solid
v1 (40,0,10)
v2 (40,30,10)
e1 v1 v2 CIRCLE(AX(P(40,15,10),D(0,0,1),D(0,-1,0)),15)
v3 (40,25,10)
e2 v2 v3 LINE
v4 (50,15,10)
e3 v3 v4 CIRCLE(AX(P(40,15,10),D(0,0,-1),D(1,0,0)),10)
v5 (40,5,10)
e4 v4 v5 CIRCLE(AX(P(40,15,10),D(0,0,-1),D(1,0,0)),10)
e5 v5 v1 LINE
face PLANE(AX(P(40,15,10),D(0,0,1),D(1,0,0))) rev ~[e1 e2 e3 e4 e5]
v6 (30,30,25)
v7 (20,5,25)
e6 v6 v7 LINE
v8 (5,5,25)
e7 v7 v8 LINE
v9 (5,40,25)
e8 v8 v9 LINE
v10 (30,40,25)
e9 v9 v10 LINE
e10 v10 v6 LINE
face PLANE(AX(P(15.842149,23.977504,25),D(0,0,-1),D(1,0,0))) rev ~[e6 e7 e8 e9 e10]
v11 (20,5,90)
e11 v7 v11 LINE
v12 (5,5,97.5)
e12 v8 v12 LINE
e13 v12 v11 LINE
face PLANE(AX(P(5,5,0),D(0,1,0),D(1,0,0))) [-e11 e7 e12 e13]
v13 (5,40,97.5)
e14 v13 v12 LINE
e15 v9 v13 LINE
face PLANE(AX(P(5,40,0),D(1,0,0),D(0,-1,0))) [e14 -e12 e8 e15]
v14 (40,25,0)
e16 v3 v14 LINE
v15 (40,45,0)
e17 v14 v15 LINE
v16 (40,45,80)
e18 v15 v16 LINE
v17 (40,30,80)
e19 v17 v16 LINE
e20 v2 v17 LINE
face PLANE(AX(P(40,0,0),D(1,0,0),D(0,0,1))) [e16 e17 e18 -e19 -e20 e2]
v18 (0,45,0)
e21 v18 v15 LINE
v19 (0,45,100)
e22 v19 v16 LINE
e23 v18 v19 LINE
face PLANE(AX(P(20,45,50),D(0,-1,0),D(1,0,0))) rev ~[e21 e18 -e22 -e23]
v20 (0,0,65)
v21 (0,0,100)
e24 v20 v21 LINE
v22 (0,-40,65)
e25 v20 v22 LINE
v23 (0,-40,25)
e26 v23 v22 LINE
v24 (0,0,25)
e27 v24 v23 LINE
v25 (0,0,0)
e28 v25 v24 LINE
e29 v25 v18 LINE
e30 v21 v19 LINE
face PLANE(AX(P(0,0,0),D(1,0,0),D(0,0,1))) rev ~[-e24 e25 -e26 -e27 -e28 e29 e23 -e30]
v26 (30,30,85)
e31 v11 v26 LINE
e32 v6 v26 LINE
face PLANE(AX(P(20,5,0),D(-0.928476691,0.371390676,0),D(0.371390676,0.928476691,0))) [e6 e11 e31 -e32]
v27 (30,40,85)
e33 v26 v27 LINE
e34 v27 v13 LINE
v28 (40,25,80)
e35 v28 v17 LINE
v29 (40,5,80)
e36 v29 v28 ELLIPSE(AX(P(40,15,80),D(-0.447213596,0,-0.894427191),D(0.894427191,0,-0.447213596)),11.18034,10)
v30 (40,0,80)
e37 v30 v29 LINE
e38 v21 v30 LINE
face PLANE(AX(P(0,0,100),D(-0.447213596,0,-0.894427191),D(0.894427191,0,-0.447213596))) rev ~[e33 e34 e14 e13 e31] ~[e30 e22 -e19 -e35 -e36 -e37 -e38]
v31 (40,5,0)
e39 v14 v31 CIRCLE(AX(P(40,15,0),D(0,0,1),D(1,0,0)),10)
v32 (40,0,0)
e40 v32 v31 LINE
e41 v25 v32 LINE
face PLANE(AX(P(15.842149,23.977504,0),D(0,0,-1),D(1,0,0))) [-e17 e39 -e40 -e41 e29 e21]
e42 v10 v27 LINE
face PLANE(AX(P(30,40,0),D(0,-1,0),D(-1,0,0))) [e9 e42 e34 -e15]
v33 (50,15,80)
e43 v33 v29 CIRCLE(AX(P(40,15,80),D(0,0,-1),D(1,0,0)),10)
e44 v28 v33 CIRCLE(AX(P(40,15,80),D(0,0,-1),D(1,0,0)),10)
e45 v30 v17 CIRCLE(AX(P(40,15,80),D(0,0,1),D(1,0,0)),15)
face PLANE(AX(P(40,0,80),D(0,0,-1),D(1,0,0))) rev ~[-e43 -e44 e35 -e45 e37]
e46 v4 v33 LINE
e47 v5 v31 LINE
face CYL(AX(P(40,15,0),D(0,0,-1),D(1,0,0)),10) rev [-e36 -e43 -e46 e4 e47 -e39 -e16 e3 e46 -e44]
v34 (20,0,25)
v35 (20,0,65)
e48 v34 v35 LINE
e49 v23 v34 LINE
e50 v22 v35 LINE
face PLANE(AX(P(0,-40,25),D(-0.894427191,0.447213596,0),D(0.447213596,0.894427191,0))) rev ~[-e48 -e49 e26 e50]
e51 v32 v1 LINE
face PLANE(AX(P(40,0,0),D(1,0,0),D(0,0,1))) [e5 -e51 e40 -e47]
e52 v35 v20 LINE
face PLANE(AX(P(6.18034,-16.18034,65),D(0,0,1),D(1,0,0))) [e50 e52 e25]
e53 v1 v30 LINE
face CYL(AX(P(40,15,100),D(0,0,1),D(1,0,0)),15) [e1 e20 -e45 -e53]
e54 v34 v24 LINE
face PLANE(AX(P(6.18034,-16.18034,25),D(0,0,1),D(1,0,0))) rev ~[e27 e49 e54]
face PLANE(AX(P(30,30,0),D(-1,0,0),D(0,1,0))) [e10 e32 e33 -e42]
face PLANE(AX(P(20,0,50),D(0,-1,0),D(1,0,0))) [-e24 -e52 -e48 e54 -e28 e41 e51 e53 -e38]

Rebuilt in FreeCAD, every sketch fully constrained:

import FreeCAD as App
import Part
import Sketcher

doc = App.newDocument("Part")
params = doc.addObject("Spreadsheet::Sheet", "Params")
for row, (alias, value) in enumerate([
    ("sketch1_width", "40 mm"),
    ("sketch1_height", "100 mm"),
    ("pad1_length", "45 mm"),
    ("sketch2_diameter", "30 mm"),
    ("pad2_length", "90 mm"),
    ("sketch3_height", "20 mm"),
    ("sketch4_width", "25 mm"),
    ("sketch4_width2", "15 mm"),
    ("sketch4_height", "35 mm"),
    ("sketch4_height2", "10 mm"),
    ("sketch5_width", "25 mm"),
    ("sketch5_width2", "15 mm"),
    ("sketch5_height", "35 mm"),
    ("sketch5_height2", "10 mm"),
    ("pad3_length", "25 mm"),
    ("sketch6_diameter", "20 mm"),
    ("sketch7_width", "20 mm"),
    ("sketch7_height", "40 mm"),
    ("pad4_length", "40 mm"),
], start=1):
    params.set(f"A{row}", alias)
    params.set(f"B{row}", "=" + value)
    params.setAlias(f"B{row}", alias)

body = doc.addObject("PartDesign::Body", "Body")

sketch1 = body.newObject("Sketcher::SketchObject", "Sketch")
sketch1.AttachmentSupport = (doc.getObject("XZ_Plane"), [""])
sketch1.MapMode = "FlatFace"
sketch1.addGeometry(Part.LineSegment(App.Vector(0, 100, 0), App.Vector(0, 0, 0)), False)
sketch1.addGeometry(Part.LineSegment(App.Vector(0, 0, 0), App.Vector(40, 0, 0)), False)
sketch1.addGeometry(Part.LineSegment(App.Vector(40, 0, 0), App.Vector(40, 100, 0)), False)
sketch1.addGeometry(Part.LineSegment(App.Vector(40, 100, 0), App.Vector(0, 100, 0)), False)
sketch1.addConstraint(Sketcher.Constraint("Coincident", 0, 2, 1, 1))
sketch1.addConstraint(Sketcher.Constraint("Coincident", 1, 2, 2, 1))
sketch1.addConstraint(Sketcher.Constraint("Coincident", 2, 2, 3, 1))
sketch1.addConstraint(Sketcher.Constraint("Coincident", 3, 2, 0, 1))
sketch1.addConstraint(Sketcher.Constraint("Vertical", 0))
sketch1.addConstraint(Sketcher.Constraint("Horizontal", 1))
sketch1.addConstraint(Sketcher.Constraint("Vertical", 2))
sketch1.addConstraint(Sketcher.Constraint("Horizontal", 3))
sketch1.addConstraint(Sketcher.Constraint("Coincident", 0, 2, -1, 1))
sketch1.addConstraint(Sketcher.Constraint("DistanceX", 1, 1, 1, 2, 40.0))
sketch1.addConstraint(Sketcher.Constraint("DistanceY", 0, 2, 0, 1, 100.0))
sketch1.setExpression("Constraints[9]", "Params.sketch1_width")
sketch1.setExpression("Constraints[10]", "Params.sketch1_height")
pad1 = body.newObject("PartDesign::Pad", "Pad")
pad1.Profile = sketch1
pad1.setExpression("Length", "Params.pad1_length")
pad1.Reversed = True

sketch2 = body.newObject("Sketcher::SketchObject", "Sketch001")
sketch2.AttachmentSupport = (doc.getObject("XY_Plane"), [""])
sketch2.MapMode = "FlatFace"
sketch2.AttachmentOffset = App.Placement(App.Vector(0, 0, 100), App.Rotation())
sketch2.addGeometry(Part.Circle(App.Vector(40, 15, 0), App.Vector(0, 0, 1), 15), False)
sketch2.addConstraint(Sketcher.Constraint("Diameter", 0, 30.0))
sketch2.addConstraint(Sketcher.Constraint("DistanceX", -1, 1, 0, 3, 40.0))
sketch2.addConstraint(Sketcher.Constraint("DistanceY", -1, 1, 0, 3, 15.0))
sketch2.setExpression("Constraints[0]", "Params.sketch2_diameter")
pad2 = body.newObject("PartDesign::Pad", "Pad001")
pad2.Profile = sketch2
pad2.setExpression("Length", "Params.pad2_length")
pad2.Reversed = True

sketch3 = body.newObject("Sketcher::SketchObject", "Sketch002")
sketch3.AttachmentSupport = (doc.getObject("XZ_Plane"), [""])
sketch3.MapMode = "FlatFace"
sketch3.addGeometry(Part.LineSegment(App.Vector(62.4297, 100, 0), App.Vector(0, 100, 0)), False)
sketch3.addGeometry(Part.LineSegment(App.Vector(0, 100, 0), App.Vector(40, 80, 0)), False)
sketch3.addGeometry(Part.LineSegment(App.Vector(40, 80, 0), App.Vector(62.4297, 80, 0)), False)
sketch3.addGeometry(Part.LineSegment(App.Vector(62.4297, 80, 0), App.Vector(62.4297, 100, 0)), False)
sketch3.addConstraint(Sketcher.Constraint("Coincident", 0, 2, 1, 1))
sketch3.addConstraint(Sketcher.Constraint("Coincident", 1, 2, 2, 1))
sketch3.addConstraint(Sketcher.Constraint("Coincident", 2, 2, 3, 1))
sketch3.addConstraint(Sketcher.Constraint("Coincident", 3, 2, 0, 1))
sketch3.addConstraint(Sketcher.Constraint("Horizontal", 0))
sketch3.addConstraint(Sketcher.Constraint("Horizontal", 2))
sketch3.addConstraint(Sketcher.Constraint("Vertical", 3))
sketch3.addConstraint(Sketcher.Constraint("PointOnObject", 0, 2, -2))
sketch3.addConstraint(Sketcher.Constraint("DistanceY", 3, 1, 3, 2, 20.0))
sketch3.addConstraint(Sketcher.Constraint("DistanceY", -1, 1, 0, 2, 100.0))
sketch3.addConstraint(Sketcher.Constraint("DistanceX", -1, 1, 1, 2, 40.0))
sketch3.addConstraint(Sketcher.Constraint("DistanceX", 0, 2, 0, 1, 62.4297))
sketch3.setExpression("Constraints[8]", "Params.sketch3_height")
pocket1 = body.newObject("PartDesign::Pocket", "Pocket")
pocket1.Profile = sketch3
pocket1.Type = "ThroughAll"

sketch4 = body.newObject("Sketcher::SketchObject", "Sketch003")
sketch4.AttachmentSupport = (doc.getObject("XY_Plane"), [""])
sketch4.MapMode = "FlatFace"
sketch4.addGeometry(Part.LineSegment(App.Vector(30, 40, 0), App.Vector(5, 40, 0)), False)
sketch4.addGeometry(Part.LineSegment(App.Vector(5, 40, 0), App.Vector(5, 5, 0)), False)
sketch4.addGeometry(Part.LineSegment(App.Vector(5, 5, 0), App.Vector(20, 5, 0)), False)
sketch4.addGeometry(Part.LineSegment(App.Vector(20, 5, 0), App.Vector(30, 30, 0)), False)
sketch4.addGeometry(Part.LineSegment(App.Vector(30, 30, 0), App.Vector(30, 40, 0)), False)
sketch4.addConstraint(Sketcher.Constraint("Coincident", 0, 2, 1, 1))
sketch4.addConstraint(Sketcher.Constraint("Coincident", 1, 2, 2, 1))
sketch4.addConstraint(Sketcher.Constraint("Coincident", 2, 2, 3, 1))
sketch4.addConstraint(Sketcher.Constraint("Coincident", 3, 2, 4, 1))
sketch4.addConstraint(Sketcher.Constraint("Coincident", 4, 2, 0, 1))
sketch4.addConstraint(Sketcher.Constraint("Horizontal", 0))
sketch4.addConstraint(Sketcher.Constraint("Vertical", 1))
sketch4.addConstraint(Sketcher.Constraint("Horizontal", 2))
sketch4.addConstraint(Sketcher.Constraint("Vertical", 4))
sketch4.addConstraint(Sketcher.Constraint("DistanceX", 0, 2, 0, 1, 25.0))
sketch4.addConstraint(Sketcher.Constraint("DistanceX", 2, 1, 2, 2, 15.0))
sketch4.addConstraint(Sketcher.Constraint("DistanceY", 1, 2, 1, 1, 35.0))
sketch4.addConstraint(Sketcher.Constraint("DistanceY", 4, 1, 4, 2, 10.0))
sketch4.addConstraint(Sketcher.Constraint("DistanceX", -1, 1, 0, 2, 5.0))
sketch4.addConstraint(Sketcher.Constraint("DistanceY", -1, 1, 0, 2, 40.0))
sketch4.setExpression("Constraints[9]", "Params.sketch4_width")
sketch4.setExpression("Constraints[10]", "Params.sketch4_width2")
sketch4.setExpression("Constraints[11]", "Params.sketch4_height")
sketch4.setExpression("Constraints[12]", "Params.sketch4_height2")
pocket2 = body.newObject("PartDesign::Pocket", "Pocket001")
pocket2.Profile = sketch4
pocket2.Type = "ThroughAll"
pocket2.Reversed = True

sketch5 = body.newObject("Sketcher::SketchObject", "Sketch004")
sketch5.AttachmentSupport = (doc.getObject("XY_Plane"), [""])
sketch5.MapMode = "FlatFace"
sketch5.addGeometry(Part.LineSegment(App.Vector(5, 5, 0), App.Vector(5, 40, 0)), False)
sketch5.addGeometry(Part.LineSegment(App.Vector(5, 40, 0), App.Vector(30, 40, 0)), False)
sketch5.addGeometry(Part.LineSegment(App.Vector(30, 40, 0), App.Vector(30, 30, 0)), False)
sketch5.addGeometry(Part.LineSegment(App.Vector(30, 30, 0), App.Vector(20, 5, 0)), False)
sketch5.addGeometry(Part.LineSegment(App.Vector(20, 5, 0), App.Vector(5, 5, 0)), False)
sketch5.addConstraint(Sketcher.Constraint("Coincident", 0, 2, 1, 1))
sketch5.addConstraint(Sketcher.Constraint("Coincident", 1, 2, 2, 1))
sketch5.addConstraint(Sketcher.Constraint("Coincident", 2, 2, 3, 1))
sketch5.addConstraint(Sketcher.Constraint("Coincident", 3, 2, 4, 1))
sketch5.addConstraint(Sketcher.Constraint("Coincident", 4, 2, 0, 1))
sketch5.addConstraint(Sketcher.Constraint("Vertical", 0))
sketch5.addConstraint(Sketcher.Constraint("Horizontal", 1))
sketch5.addConstraint(Sketcher.Constraint("Vertical", 2))
sketch5.addConstraint(Sketcher.Constraint("Horizontal", 4))
sketch5.addConstraint(Sketcher.Constraint("DistanceX", 1, 1, 1, 2, 25.0))
sketch5.addConstraint(Sketcher.Constraint("DistanceX", 4, 2, 4, 1, 15.0))
sketch5.addConstraint(Sketcher.Constraint("DistanceY", 0, 1, 0, 2, 35.0))
sketch5.addConstraint(Sketcher.Constraint("DistanceY", 2, 2, 2, 1, 10.0))
sketch5.addConstraint(Sketcher.Constraint("DistanceX", -1, 1, 0, 2, 5.0))
sketch5.addConstraint(Sketcher.Constraint("DistanceY", -1, 1, 0, 2, 40.0))
sketch5.setExpression("Constraints[9]", "Params.sketch5_width")
sketch5.setExpression("Constraints[10]", "Params.sketch5_width2")
sketch5.setExpression("Constraints[11]", "Params.sketch5_height")
sketch5.setExpression("Constraints[12]", "Params.sketch5_height2")
pad3 = body.newObject("PartDesign::Pad", "Pad002")
pad3.Profile = sketch5
pad3.setExpression("Length", "Params.pad3_length")

sketch6 = body.newObject("Sketcher::SketchObject", "Sketch005")
sketch6.AttachmentSupport = (doc.getObject("XY_Plane"), [""])
sketch6.MapMode = "FlatFace"
sketch6.addGeometry(Part.Circle(App.Vector(40, 15, 0), App.Vector(0, 0, 1), 10), False)
sketch6.addConstraint(Sketcher.Constraint("Diameter", 0, 20.0))
sketch6.addConstraint(Sketcher.Constraint("DistanceX", -1, 1, 0, 3, 40.0))
sketch6.addConstraint(Sketcher.Constraint("DistanceY", -1, 1, 0, 3, 15.0))
sketch6.setExpression("Constraints[0]", "Params.sketch6_diameter")
pocket3 = body.newObject("PartDesign::Pocket", "Pocket002")
pocket3.Profile = sketch6
pocket3.Type = "ThroughAll"
pocket3.Reversed = True

sketch7 = body.newObject("Sketcher::SketchObject", "Sketch006")
sketch7.AttachmentSupport = (doc.getObject("XY_Plane"), [""])
sketch7.MapMode = "FlatFace"
sketch7.AttachmentOffset = App.Placement(App.Vector(0, 0, 25), App.Rotation())
sketch7.addGeometry(Part.LineSegment(App.Vector(20, 0, 0), App.Vector(0, 0, 0)), False)
sketch7.addGeometry(Part.LineSegment(App.Vector(0, 0, 0), App.Vector(0, -40, 0)), False)
sketch7.addGeometry(Part.LineSegment(App.Vector(0, -40, 0), App.Vector(20, 0, 0)), False)
sketch7.addConstraint(Sketcher.Constraint("Coincident", 0, 2, 1, 1))
sketch7.addConstraint(Sketcher.Constraint("Coincident", 1, 2, 2, 1))
sketch7.addConstraint(Sketcher.Constraint("Coincident", 2, 2, 0, 1))
sketch7.addConstraint(Sketcher.Constraint("Horizontal", 0))
sketch7.addConstraint(Sketcher.Constraint("Vertical", 1))
sketch7.addConstraint(Sketcher.Constraint("Coincident", 0, 2, -1, 1))
sketch7.addConstraint(Sketcher.Constraint("DistanceX", 0, 2, 0, 1, 20.0))
sketch7.addConstraint(Sketcher.Constraint("DistanceY", 1, 2, 1, 1, 40.0))
sketch7.setExpression("Constraints[6]", "Params.sketch7_width")
sketch7.setExpression("Constraints[7]", "Params.sketch7_height")
pad4 = body.newObject("PartDesign::Pad", "Pad003")
pad4.Profile = sketch7
pad4.setExpression("Length", "Params.pad4_length")

doc.recompute()
